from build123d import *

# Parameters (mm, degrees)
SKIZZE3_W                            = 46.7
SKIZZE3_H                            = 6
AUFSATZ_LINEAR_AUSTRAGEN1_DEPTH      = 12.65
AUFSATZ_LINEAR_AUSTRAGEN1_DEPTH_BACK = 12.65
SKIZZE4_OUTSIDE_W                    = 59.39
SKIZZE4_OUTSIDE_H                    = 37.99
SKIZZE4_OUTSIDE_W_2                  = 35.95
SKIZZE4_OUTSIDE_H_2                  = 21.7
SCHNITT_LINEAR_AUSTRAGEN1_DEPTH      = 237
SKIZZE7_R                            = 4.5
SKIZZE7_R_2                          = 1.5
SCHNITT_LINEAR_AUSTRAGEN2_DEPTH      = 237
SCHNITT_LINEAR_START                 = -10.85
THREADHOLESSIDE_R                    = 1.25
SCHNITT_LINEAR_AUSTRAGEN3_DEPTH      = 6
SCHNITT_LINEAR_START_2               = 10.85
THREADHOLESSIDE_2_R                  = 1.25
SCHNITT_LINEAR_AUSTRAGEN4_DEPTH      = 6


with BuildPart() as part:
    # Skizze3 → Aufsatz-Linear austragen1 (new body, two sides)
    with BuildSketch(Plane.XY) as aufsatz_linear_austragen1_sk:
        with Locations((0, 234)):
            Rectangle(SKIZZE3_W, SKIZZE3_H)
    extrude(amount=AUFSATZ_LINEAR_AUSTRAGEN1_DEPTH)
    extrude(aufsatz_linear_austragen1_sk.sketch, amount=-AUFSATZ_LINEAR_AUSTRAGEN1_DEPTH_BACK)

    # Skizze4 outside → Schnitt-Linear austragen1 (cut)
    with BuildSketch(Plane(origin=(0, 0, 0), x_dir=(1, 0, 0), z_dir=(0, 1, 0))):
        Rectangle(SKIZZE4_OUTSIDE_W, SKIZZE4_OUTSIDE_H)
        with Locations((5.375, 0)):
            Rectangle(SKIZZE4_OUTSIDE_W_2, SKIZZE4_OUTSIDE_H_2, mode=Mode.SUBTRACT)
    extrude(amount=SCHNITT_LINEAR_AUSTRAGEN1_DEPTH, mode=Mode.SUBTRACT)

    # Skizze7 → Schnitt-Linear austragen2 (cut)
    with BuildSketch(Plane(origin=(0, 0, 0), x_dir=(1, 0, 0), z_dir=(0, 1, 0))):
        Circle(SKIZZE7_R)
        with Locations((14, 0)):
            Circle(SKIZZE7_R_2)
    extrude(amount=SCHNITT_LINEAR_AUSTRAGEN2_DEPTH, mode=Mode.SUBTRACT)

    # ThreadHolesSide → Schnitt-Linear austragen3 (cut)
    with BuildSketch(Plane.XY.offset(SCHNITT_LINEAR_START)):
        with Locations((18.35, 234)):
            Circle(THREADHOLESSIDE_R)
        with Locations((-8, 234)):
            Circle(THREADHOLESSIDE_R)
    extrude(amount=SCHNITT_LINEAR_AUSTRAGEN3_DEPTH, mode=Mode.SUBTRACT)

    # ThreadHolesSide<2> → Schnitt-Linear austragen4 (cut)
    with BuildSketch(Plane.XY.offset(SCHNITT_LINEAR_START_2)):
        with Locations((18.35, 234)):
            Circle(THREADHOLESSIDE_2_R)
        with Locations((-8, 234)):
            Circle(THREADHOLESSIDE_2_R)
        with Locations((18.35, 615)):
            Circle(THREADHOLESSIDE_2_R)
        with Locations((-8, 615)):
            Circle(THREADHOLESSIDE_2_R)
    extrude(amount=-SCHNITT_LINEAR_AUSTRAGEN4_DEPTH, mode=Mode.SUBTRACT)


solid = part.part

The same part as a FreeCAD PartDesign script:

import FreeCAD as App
import Part
import Sketcher

V = App.Vector
Q = App.Units.Quantity

doc = App.newDocument("Part")
body = doc.addObject("PartDesign::Body", "Body")

# Sketch on XY plane
sketch1 = body.newObject("Sketcher::SketchObject", "Sketch")
sketch1.AttachmentSupport = (doc.getObject("XY_Plane"), [""])
sketch1.MapMode = "FlatFace"
sketch1.addGeometry(Part.LineSegment(V(-23.35, 237, 0), V(-23.35, 231, 0)), False)
sketch1.addGeometry(Part.LineSegment(V(-23.35, 231, 0), V(23.35, 231, 0)), False)
sketch1.addGeometry(Part.LineSegment(V(23.35, 231, 0), V(23.35, 237, 0)), False)
sketch1.addGeometry(Part.LineSegment(V(23.35, 237, 0), V(-23.35, 237, 0)), False)
sketch1.addConstraint(Sketcher.Constraint("Coincident", 0, 2, 1, 1))
sketch1.addConstraint(Sketcher.Constraint("Coincident", 1, 2, 2, 1))
sketch1.addConstraint(Sketcher.Constraint("Coincident", 2, 2, 3, 1))
sketch1.addConstraint(Sketcher.Constraint("Coincident", 3, 2, 0, 1))
sketch1.addConstraint(Sketcher.Constraint("Vertical", 0))
sketch1.addConstraint(Sketcher.Constraint("Horizontal", 1))
sketch1.addConstraint(Sketcher.Constraint("Vertical", 2))
sketch1.addConstraint(Sketcher.Constraint("Horizontal", 3))
sketch1.addConstraint(Sketcher.Constraint("DistanceY", 0, 2, 0, 1, Q("6 mm")))
sketch1.addConstraint(Sketcher.Constraint("DistanceX", 1, 1, 1, 2, Q("46.7 mm")))
sketch1.addConstraint(Sketcher.Constraint("DistanceY", -1, 1, 0, 2, Q("231 mm")))
sketch1.addConstraint(Sketcher.Constraint("DistanceX", 0, 2, -1, 1, Q("23.35 mm")))
pad1 = body.newObject("PartDesign::Pad", "Pad")
pad1.Profile = sketch1
pad1.Type = "TwoLengths"
pad1.Length = 12.65
pad1.Length2 = 12.65

# Sketch on XZ plane
sketch2 = body.newObject("Sketcher::SketchObject", "Sketch001")
sketch2.AttachmentSupport = (doc.getObject("XZ_Plane"), [""])
sketch2.MapMode = "FlatFace"
sketch2.addGeometry(Part.LineSegment(V(-29.695, -18.995, 0), V(-29.695, 18.995, 0)), False)
sketch2.addGeometry(Part.LineSegment(V(-29.695, 18.995, 0), V(29.695, 18.995, 0)), False)
sketch2.addGeometry(Part.LineSegment(V(29.695, 18.995, 0), V(29.695, -18.995, 0)), False)
sketch2.addGeometry(Part.LineSegment(V(29.695, -18.995, 0), V(-29.695, -18.995, 0)), False)
sketch2.addGeometry(Part.LineSegment(V(23.35, 10.85, 0), V(-12.6, 10.85, 0)), False)
sketch2.addGeometry(Part.LineSegment(V(-12.6, 10.85, 0), V(-12.6, -10.85, 0)), False)
sketch2.addGeometry(Part.LineSegment(V(-12.6, -10.85, 0), V(23.35, -10.85, 0)), False)
sketch2.addGeometry(Part.LineSegment(V(23.35, -10.85, 0), V(23.35, 10.85, 0)), False)
sketch2.addConstraint(Sketcher.Constraint("Coincident", 0, 2, 1, 1))
sketch2.addConstraint(Sketcher.Constraint("Coincident", 1, 2, 2, 1))
sketch2.addConstraint(Sketcher.Constraint("Coincident", 2, 2, 3, 1))
sketch2.addConstraint(Sketcher.Constraint("Coincident", 3, 2, 0, 1))
sketch2.addConstraint(Sketcher.Constraint("Coincident", 4, 2, 5, 1))
sketch2.addConstraint(Sketcher.Constraint("Coincident", 5, 2, 6, 1))
sketch2.addConstraint(Sketcher.Constraint("Coincident", 6, 2, 7, 1))
sketch2.addConstraint(Sketcher.Constraint("Coincident", 7, 2, 4, 1))
sketch2.addConstraint(Sketcher.Constraint("Vertical", 0))
sketch2.addConstraint(Sketcher.Constraint("Horizontal", 1))
sketch2.addConstraint(Sketcher.Constraint("Vertical", 2))
sketch2.addConstraint(Sketcher.Constraint("Horizontal", 3))
sketch2.addConstraint(Sketcher.Constraint("Horizontal", 4))
sketch2.addConstraint(Sketcher.Constraint("Vertical", 5))
sketch2.addConstraint(Sketcher.Constraint("Horizontal", 6))
sketch2.addConstraint(Sketcher.Constraint("Vertical", 7))
sketch2.addConstraint(Sketcher.Constraint("Symmetric", 0, 2, 2, 2, -1, 1))
sketch2.addConstraint(Sketcher.Constraint("DistanceY", 5, 2, 5, 1, Q("21.7 mm")))
sketch2.addConstraint(Sketcher.Constraint("DistanceX", 1, 1, 1, 2, Q("59.39 mm")))
sketch2.addConstraint(Sketcher.Constraint("DistanceX", 4, 2, 4, 1, Q("35.95 mm")))
sketch2.addConstraint(Sketcher.Constraint("DistanceY", 0, 1, 0, 2, Q("37.99 mm")))
sketch2.addConstraint(Sketcher.Constraint("DistanceX", 4, 2, -1, 1, Q("12.6 mm")))
sketch2.addConstraint(Sketcher.Constraint("DistanceY", -1, 1, 4, 2, Q("10.85 mm")))
pocket1 = body.newObject("PartDesign::Pocket", "Pocket")
pocket1.Profile = sketch2
pocket1.Length = 237

# Sketch on XZ plane
sketch3 = body.newObject("Sketcher::SketchObject", "Sketch002")
sketch3.AttachmentSupport = (doc.getObject("XZ_Plane"), [""])
sketch3.MapMode = "FlatFace"
sketch3.addGeometry(Part.Circle(V(0, 0, 0), V(0, 0, 1), 4.5), False)
sketch3.addGeometry(Part.Circle(V(14, 0, 0), V(0, 0, 1), 1.5), False)
sketch3.addConstraint(Sketcher.Constraint("Coincident", 0, 3, -1, 1))
sketch3.addConstraint(Sketcher.Constraint("PointOnObject", 1, 3, -1))
sketch3.addConstraint(Sketcher.Constraint("Diameter", 0, Q("9 mm")))
sketch3.addConstraint(Sketcher.Constraint("Diameter", 1, Q("3 mm")))
sketch3.addConstraint(Sketcher.Constraint("DistanceX", -1, 1, 1, 3, Q("14 mm")))
pocket2 = body.newObject("PartDesign::Pocket", "Pocket001")
pocket2.Profile = sketch3
pocket2.Length = 237

# Sketch on XY plane
sketch4 = body.newObject("Sketcher::SketchObject", "Sketch003")
sketch4.AttachmentSupport = (doc.getObject("XY_Plane"), [""])
sketch4.MapMode = "FlatFace"
sketch4.AttachmentOffset = App.Placement(V(0, 0, -10.85), App.Rotation())
sketch4.addGeometry(Part.Circle(V(18.35, 234, 0), V(0, 0, 1), 1.25), False)
sketch4.addGeometry(Part.Circle(V(-8, 234, 0), V(0, 0, 1), 1.25), False)
sketch4.addConstraint(Sketcher.Constraint("Equal", 0, 1))
sketch4.addConstraint(Sketcher.Constraint("Horizontal", 0, 3, 1, 3))
sketch4.addConstraint(Sketcher.Constraint("Diameter", 0, Q("2.5 mm")))
sketch4.addConstraint(Sketcher.Constraint("DistanceY", -1, 1, 0, 3, Q("234 mm")))
sketch4.addConstraint(Sketcher.Constraint("DistanceX", 1, 3, -1, 1, Q("8 mm")))
sketch4.addConstraint(Sketcher.Constraint("DistanceX", -1, 1, 0, 3, Q("18.35 mm")))
pocket3 = body.newObject("PartDesign::Pocket", "Pocket002")
pocket3.Profile = sketch4
pocket3.Length = 6
pocket3.Reversed = True

# Sketch on XY plane
sketch5 = body.newObject("Sketcher::SketchObject", "Sketch004")
sketch5.AttachmentSupport = (doc.getObject("XY_Plane"), [""])
sketch5.MapMode = "FlatFace"
sketch5.AttachmentOffset = App.Placement(V(0, 0, 10.85), App.Rotation())
sketch5.addGeometry(Part.Circle(V(18.35, 234, 0), V(0, 0, 1), 1.25), False)
sketch5.addGeometry(Part.Circle(V(-8, 234, 0), V(0, 0, 1), 1.25), False)
sketch5.addGeometry(Part.Circle(V(18.35, 615, 0), V(0, 0, 1), 1.25), False)
sketch5.addGeometry(Part.Circle(V(-8, 615, 0), V(0, 0, 1), 1.25), False)
sketch5.addConstraint(Sketcher.Constraint("Equal", 0, 1))
sketch5.addConstraint(Sketcher.Constraint("Equal", 1, 2))
sketch5.addConstraint(Sketcher.Constraint("Equal", 2, 3))
sketch5.addConstraint(Sketcher.Constraint("Horizontal", 0, 3, 1, 3))
sketch5.addConstraint(Sketcher.Constraint("Horizontal", 2, 3, 3, 3))
sketch5.addConstraint(Sketcher.Constraint("Vertical", 0, 3, 2, 3))
sketch5.addConstraint(Sketcher.Constraint("Vertical", 1, 3, 3, 3))
sketch5.addConstraint(Sketcher.Constraint("Diameter", 0, Q("2.5 mm")))
sketch5.addConstraint(Sketcher.Constraint("DistanceY", -1, 1, 0, 3, Q("234 mm")))
sketch5.addConstraint(Sketcher.Constraint("DistanceX", 1, 3, -1, 1, Q("8 mm")))
sketch5.addConstraint(Sketcher.Constraint("DistanceY", -1, 1, 2, 3, Q("615 mm")))
sketch5.addConstraint(Sketcher.Constraint("DistanceX", -1, 1, 0, 3, Q("18.35 mm")))
pocket4 = body.newObject("PartDesign::Pocket", "Pocket003")
pocket4.Profile = sketch5
pocket4.Length = 6

doc.recompute()
